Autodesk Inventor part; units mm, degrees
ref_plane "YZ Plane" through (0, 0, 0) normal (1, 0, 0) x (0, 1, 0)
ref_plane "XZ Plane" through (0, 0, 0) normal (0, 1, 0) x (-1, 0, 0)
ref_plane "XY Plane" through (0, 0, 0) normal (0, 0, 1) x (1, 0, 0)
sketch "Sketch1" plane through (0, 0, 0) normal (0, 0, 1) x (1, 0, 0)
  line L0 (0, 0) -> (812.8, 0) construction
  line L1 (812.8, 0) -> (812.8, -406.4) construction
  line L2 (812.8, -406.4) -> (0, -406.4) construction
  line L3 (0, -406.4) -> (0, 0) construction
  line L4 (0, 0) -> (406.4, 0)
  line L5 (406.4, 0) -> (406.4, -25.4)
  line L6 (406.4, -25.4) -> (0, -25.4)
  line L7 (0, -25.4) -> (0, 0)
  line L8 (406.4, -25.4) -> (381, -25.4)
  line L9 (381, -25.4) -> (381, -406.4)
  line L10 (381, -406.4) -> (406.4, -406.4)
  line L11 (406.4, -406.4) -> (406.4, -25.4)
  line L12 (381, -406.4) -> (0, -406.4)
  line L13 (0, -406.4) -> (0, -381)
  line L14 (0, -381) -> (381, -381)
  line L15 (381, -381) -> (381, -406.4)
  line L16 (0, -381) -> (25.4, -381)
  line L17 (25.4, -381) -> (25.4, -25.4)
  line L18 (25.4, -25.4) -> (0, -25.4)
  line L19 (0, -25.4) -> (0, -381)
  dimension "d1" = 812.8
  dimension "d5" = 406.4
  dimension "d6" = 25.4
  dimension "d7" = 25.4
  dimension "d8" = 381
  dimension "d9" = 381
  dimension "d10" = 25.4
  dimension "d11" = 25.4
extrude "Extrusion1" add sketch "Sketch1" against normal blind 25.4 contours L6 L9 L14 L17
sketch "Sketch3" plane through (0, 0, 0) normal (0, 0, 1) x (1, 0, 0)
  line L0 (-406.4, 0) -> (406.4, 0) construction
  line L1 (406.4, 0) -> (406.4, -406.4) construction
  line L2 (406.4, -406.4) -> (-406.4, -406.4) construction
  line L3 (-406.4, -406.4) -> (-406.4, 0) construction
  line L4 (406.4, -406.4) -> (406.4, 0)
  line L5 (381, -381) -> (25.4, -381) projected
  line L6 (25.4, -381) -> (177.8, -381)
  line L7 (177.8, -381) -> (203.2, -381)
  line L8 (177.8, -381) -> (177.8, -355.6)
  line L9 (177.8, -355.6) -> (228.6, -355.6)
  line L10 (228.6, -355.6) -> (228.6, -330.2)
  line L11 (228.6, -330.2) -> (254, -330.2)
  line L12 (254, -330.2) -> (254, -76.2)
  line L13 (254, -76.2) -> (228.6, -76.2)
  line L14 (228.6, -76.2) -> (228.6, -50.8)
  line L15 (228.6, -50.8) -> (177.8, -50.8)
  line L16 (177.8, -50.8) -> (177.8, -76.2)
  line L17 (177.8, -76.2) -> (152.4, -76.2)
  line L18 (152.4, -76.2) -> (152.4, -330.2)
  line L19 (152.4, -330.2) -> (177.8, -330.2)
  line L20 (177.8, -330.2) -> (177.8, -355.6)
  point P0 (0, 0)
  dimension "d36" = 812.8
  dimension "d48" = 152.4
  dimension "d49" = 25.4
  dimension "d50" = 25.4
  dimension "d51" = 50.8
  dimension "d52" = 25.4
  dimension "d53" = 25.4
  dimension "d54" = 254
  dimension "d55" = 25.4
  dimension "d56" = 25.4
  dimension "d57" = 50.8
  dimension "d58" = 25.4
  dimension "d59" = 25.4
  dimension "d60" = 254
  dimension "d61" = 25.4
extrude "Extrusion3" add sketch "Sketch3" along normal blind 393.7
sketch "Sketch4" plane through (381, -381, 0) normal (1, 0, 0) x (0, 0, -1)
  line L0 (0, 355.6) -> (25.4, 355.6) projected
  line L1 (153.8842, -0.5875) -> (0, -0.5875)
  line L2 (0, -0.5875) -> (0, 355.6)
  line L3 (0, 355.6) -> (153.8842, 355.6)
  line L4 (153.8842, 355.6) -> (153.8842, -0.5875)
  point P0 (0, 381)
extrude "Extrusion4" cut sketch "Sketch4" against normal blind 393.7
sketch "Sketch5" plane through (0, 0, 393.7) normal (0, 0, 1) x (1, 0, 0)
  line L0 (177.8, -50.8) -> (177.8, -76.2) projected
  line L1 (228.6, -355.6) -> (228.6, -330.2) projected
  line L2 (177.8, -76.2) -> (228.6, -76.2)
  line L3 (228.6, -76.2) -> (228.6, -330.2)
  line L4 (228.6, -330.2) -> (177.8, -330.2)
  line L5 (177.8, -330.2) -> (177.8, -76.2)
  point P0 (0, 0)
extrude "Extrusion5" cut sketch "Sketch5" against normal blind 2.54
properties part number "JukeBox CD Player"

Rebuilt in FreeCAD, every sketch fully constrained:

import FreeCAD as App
import Part
import Sketcher
Q = App.Units.Quantity

doc = App.newDocument("Part")
body = doc.addObject("PartDesign::Body", "Body")

# Sketch on XY plane
sketch1 = doc.addObject("Sketcher::SketchObject", "Sketch")
body.addObject(sketch1)
sketch1.AttachmentSupport = (doc.XY_Plane, [""])
sketch1.MapMode = "FlatFace"
sketch1.addGeometry([
    Part.LineSegment(App.Vector(381, -25.4, 0), App.Vector(25.4, -25.4, 0)),
    Part.LineSegment(App.Vector(25.4, -25.4, 0), App.Vector(25.4, -381, 0)),
    Part.LineSegment(App.Vector(25.4, -381, 0), App.Vector(381, -381, 0)),
    Part.LineSegment(App.Vector(381, -381, 0), App.Vector(381, -25.4, 0)),
], False)
sketch1.addConstraint([
    Sketcher.Constraint("Coincident", 0, 2, 1, 1),
    Sketcher.Constraint("Coincident", 1, 2, 2, 1),
    Sketcher.Constraint("Coincident", 2, 2, 3, 1),
    Sketcher.Constraint("Coincident", 3, 2, 0, 1),
    Sketcher.Constraint("Horizontal", 0),
    Sketcher.Constraint("Vertical", 1),
    Sketcher.Constraint("Horizontal", 2),
    Sketcher.Constraint("Vertical", 3),
    Sketcher.Constraint("Equal", 2, 1),
    Sketcher.Constraint("DistanceX", -1, 1, 0, 2, Q("1 in")),
    Sketcher.Constraint("DistanceY", 0, 2, -1, 1, Q("1 in")),
    Sketcher.Constraint("DistanceY", 1, 2, -1, 1, Q("15 in")),
])
pad1 = doc.addObject("PartDesign::Pad", "Pad")
body.addObject(pad1)
pad1.Profile = sketch1
pad1.Length = Q("1 in")
pad1.Reversed = True

# Sketch on XY plane
sketch2 = doc.addObject("Sketcher::SketchObject", "Sketch001")
body.addObject(sketch2)
sketch2.AttachmentSupport = (doc.XY_Plane, [""])
sketch2.MapMode = "FlatFace"
sketch2.addGeometry([
    Part.LineSegment(App.Vector(177.8, -330.2, 0), App.Vector(177.8, -355.6, 0)),  # 0
    Part.LineSegment(App.Vector(177.8, -355.6, 0), App.Vector(228.6, -355.6, 0)),  # 1
    Part.LineSegment(App.Vector(228.6, -355.6, 0), App.Vector(228.6, -330.2, 0)),  # 2
    Part.LineSegment(App.Vector(228.6, -330.2, 0), App.Vector(254, -330.2, 0)),  # 3
    Part.LineSegment(App.Vector(254, -330.2, 0), App.Vector(254, -76.2, 0)),  # 4
    Part.LineSegment(App.Vector(254, -76.2, 0), App.Vector(228.6, -76.2, 0)),  # 5
    Part.LineSegment(App.Vector(228.6, -76.2, 0), App.Vector(228.6, -50.8, 0)),  # 6
    Part.LineSegment(App.Vector(228.6, -50.8, 0), App.Vector(177.8, -50.8, 0)),  # 7
    Part.LineSegment(App.Vector(177.8, -50.8, 0), App.Vector(177.8, -76.2, 0)),  # 8
    Part.LineSegment(App.Vector(177.8, -76.2, 0), App.Vector(152.4, -76.2, 0)),  # 9
    Part.LineSegment(App.Vector(152.4, -76.2, 0), App.Vector(152.4, -330.2, 0)),  # 10
    Part.LineSegment(App.Vector(152.4, -330.2, 0), App.Vector(177.8, -330.2, 0)),  # 11
], False)
sketch2.addConstraint([
    Sketcher.Constraint("Coincident", 0, 2, 1, 1),
    Sketcher.Constraint("Coincident", 1, 2, 2, 1),
    Sketcher.Constraint("Coincident", 2, 2, 3, 1),
    Sketcher.Constraint("Coincident", 3, 2, 4, 1),
    Sketcher.Constraint("Coincident", 4, 2, 5, 1),
    Sketcher.Constraint("Coincident", 5, 2, 6, 1),
    Sketcher.Constraint("Coincident", 6, 2, 7, 1),
    Sketcher.Constraint("Coincident", 7, 2, 8, 1),
    Sketcher.Constraint("Coincident", 8, 2, 9, 1),
    Sketcher.Constraint("Coincident", 9, 2, 10, 1),
    Sketcher.Constraint("Coincident", 10, 2, 11, 1),
    Sketcher.Constraint("Coincident", 11, 2, 0, 1),
    Sketcher.Constraint("Vertical", 0),
    Sketcher.Constraint("Horizontal", 1),
    Sketcher.Constraint("Vertical", 2),
    Sketcher.Constraint("Horizontal", 3),
    Sketcher.Constraint("Vertical", 4),
    Sketcher.Constraint("Horizontal", 5),
    Sketcher.Constraint("Vertical", 6),
    Sketcher.Constraint("Horizontal", 7),
    Sketcher.Constraint("Vertical", 8),
    Sketcher.Constraint("Horizontal", 9),
    Sketcher.Constraint("Vertical", 10),
    Sketcher.Constraint("Horizontal", 11),
    Sketcher.Constraint("Horizontal", 5, 2, 8, 2),
    Sketcher.Constraint("Horizontal", 3, 2, 10, 2),
    Sketcher.Constraint("Vertical", 2, 2, 5, 2),
    Sketcher.Constraint("Vertical", 0, 2, 7, 2),
    Sketcher.Constraint("Equal", 5, 9),
    Sketcher.Constraint("Equal", 11, 0),
    Sketcher.Constraint("Equal", 2, 6),
    Sketcher.Constraint("DistanceX", 1, 1, 1, 2, Q("2 in")),
    Sketcher.Constraint("DistanceX", 3, 1, 3, 2, Q("1 in")),
    Sketcher.Constraint("DistanceY", 4, 1, 4, 2, Q("10 in")),
    Sketcher.Constraint("DistanceX", -1, 1, 3, 2, Q("10 in")),
    Sketcher.Constraint("DistanceY", 6, 2, -1, 1, Q("2 in")),
])
pad2 = doc.addObject("PartDesign::Pad", "Pad001")
body.addObject(pad2)
pad2.Profile = sketch2
pad2.Length = Q("15.5 in")

# Sketch on YZ plane
sketch3 = doc.addObject("Sketcher::SketchObject", "Sketch002")
body.addObject(sketch3)
sketch3.AttachmentSupport = (doc.YZ_Plane, [""])
sketch3.MapMode = "FlatFace"
sketch3.AttachmentOffset = App.Placement(App.Vector(0, 0, 15 * 25.4), App.Rotation())
sketch3.addGeometry([
    Part.LineSegment(App.Vector(-25.4, -153.8842, 0), App.Vector(-25.4, 0, 0)),
    Part.LineSegment(App.Vector(-25.4, 0, 0), App.Vector(-381.5875, 0, 0)),
    Part.LineSegment(App.Vector(-381.5875, 0, 0), App.Vector(-381.5875, -153.8842, 0)),
    Part.LineSegment(App.Vector(-381.5875, -153.8842, 0), App.Vector(-25.4, -153.8842, 0)),
], False)
sketch3.addConstraint([
    Sketcher.Constraint("Coincident", 0, 2, 1, 1),
    Sketcher.Constraint("Coincident", 1, 2, 2, 1),
    Sketcher.Constraint("Coincident", 2, 2, 3, 1),
    Sketcher.Constraint("Coincident", 3, 2, 0, 1),
    Sketcher.Constraint("Vertical", 0),
    Sketcher.Constraint("Horizontal", 1),
    Sketcher.Constraint("Vertical", 2),
    Sketcher.Constraint("Horizontal", 3),
    Sketcher.Constraint("PointOnObject", 0, 2, -1),
    Sketcher.Constraint("DistanceX", 0, 2, -1, 1, Q("1 in")),
    Sketcher.Constraint("DistanceX", 1, 2, 1, 1, 356.1875),
    Sketcher.Constraint("DistanceY", 0, 1, 0, 2, 153.8842),
])
pocket1 = doc.addObject("PartDesign::Pocket", "Pocket")
body.addObject(pocket1)
pocket1.Profile = sketch3
pocket1.Length = Q("15.5 in")

# Sketch on XY plane
sketch4 = doc.addObject("Sketcher::SketchObject", "Sketch003")
body.addObject(sketch4)
sketch4.AttachmentSupport = (doc.XY_Plane, [""])
sketch4.MapMode = "FlatFace"
sketch4.AttachmentOffset = App.Placement(App.Vector(0, 0, 15.5 * 25.4), App.Rotation())
sketch4.addGeometry([
    Part.LineSegment(App.Vector(228.6, -76.2, 0), App.Vector(177.8, -76.2, 0)),
    Part.LineSegment(App.Vector(177.8, -76.2, 0), App.Vector(177.8, -330.2, 0)),
    Part.LineSegment(App.Vector(177.8, -330.2, 0), App.Vector(228.6, -330.2, 0)),
    Part.LineSegment(App.Vector(228.6, -330.2, 0), App.Vector(228.6, -76.2, 0)),
], False)
sketch4.addConstraint([
    Sketcher.Constraint("Coincident", 0, 2, 1, 1),
    Sketcher.Constraint("Coincident", 1, 2, 2, 1),
    Sketcher.Constraint("Coincident", 2, 2, 3, 1),
    Sketcher.Constraint("Coincident", 3, 2, 0, 1),
    Sketcher.Constraint("Horizontal", 0),
    Sketcher.Constraint("Vertical", 1),
    Sketcher.Constraint("Horizontal", 2),
    Sketcher.Constraint("Vertical", 3),
    Sketcher.Constraint("DistanceX", 0, 2, 0, 1, Q("2 in")),
    Sketcher.Constraint("DistanceY", 1, 2, 1, 1, Q("10 in")),
    Sketcher.Constraint("DistanceX", -1, 1, 0, 2, Q("7 in")),
    Sketcher.Constraint("DistanceY", 0, 2, -1, 1, Q("3 in")),
])
pocket2 = doc.addObject("PartDesign::Pocket", "Pocket001")
body.addObject(pocket2)
pocket2.Profile = sketch4
pocket2.Length = Q("0.1 in")

doc.recompute()
